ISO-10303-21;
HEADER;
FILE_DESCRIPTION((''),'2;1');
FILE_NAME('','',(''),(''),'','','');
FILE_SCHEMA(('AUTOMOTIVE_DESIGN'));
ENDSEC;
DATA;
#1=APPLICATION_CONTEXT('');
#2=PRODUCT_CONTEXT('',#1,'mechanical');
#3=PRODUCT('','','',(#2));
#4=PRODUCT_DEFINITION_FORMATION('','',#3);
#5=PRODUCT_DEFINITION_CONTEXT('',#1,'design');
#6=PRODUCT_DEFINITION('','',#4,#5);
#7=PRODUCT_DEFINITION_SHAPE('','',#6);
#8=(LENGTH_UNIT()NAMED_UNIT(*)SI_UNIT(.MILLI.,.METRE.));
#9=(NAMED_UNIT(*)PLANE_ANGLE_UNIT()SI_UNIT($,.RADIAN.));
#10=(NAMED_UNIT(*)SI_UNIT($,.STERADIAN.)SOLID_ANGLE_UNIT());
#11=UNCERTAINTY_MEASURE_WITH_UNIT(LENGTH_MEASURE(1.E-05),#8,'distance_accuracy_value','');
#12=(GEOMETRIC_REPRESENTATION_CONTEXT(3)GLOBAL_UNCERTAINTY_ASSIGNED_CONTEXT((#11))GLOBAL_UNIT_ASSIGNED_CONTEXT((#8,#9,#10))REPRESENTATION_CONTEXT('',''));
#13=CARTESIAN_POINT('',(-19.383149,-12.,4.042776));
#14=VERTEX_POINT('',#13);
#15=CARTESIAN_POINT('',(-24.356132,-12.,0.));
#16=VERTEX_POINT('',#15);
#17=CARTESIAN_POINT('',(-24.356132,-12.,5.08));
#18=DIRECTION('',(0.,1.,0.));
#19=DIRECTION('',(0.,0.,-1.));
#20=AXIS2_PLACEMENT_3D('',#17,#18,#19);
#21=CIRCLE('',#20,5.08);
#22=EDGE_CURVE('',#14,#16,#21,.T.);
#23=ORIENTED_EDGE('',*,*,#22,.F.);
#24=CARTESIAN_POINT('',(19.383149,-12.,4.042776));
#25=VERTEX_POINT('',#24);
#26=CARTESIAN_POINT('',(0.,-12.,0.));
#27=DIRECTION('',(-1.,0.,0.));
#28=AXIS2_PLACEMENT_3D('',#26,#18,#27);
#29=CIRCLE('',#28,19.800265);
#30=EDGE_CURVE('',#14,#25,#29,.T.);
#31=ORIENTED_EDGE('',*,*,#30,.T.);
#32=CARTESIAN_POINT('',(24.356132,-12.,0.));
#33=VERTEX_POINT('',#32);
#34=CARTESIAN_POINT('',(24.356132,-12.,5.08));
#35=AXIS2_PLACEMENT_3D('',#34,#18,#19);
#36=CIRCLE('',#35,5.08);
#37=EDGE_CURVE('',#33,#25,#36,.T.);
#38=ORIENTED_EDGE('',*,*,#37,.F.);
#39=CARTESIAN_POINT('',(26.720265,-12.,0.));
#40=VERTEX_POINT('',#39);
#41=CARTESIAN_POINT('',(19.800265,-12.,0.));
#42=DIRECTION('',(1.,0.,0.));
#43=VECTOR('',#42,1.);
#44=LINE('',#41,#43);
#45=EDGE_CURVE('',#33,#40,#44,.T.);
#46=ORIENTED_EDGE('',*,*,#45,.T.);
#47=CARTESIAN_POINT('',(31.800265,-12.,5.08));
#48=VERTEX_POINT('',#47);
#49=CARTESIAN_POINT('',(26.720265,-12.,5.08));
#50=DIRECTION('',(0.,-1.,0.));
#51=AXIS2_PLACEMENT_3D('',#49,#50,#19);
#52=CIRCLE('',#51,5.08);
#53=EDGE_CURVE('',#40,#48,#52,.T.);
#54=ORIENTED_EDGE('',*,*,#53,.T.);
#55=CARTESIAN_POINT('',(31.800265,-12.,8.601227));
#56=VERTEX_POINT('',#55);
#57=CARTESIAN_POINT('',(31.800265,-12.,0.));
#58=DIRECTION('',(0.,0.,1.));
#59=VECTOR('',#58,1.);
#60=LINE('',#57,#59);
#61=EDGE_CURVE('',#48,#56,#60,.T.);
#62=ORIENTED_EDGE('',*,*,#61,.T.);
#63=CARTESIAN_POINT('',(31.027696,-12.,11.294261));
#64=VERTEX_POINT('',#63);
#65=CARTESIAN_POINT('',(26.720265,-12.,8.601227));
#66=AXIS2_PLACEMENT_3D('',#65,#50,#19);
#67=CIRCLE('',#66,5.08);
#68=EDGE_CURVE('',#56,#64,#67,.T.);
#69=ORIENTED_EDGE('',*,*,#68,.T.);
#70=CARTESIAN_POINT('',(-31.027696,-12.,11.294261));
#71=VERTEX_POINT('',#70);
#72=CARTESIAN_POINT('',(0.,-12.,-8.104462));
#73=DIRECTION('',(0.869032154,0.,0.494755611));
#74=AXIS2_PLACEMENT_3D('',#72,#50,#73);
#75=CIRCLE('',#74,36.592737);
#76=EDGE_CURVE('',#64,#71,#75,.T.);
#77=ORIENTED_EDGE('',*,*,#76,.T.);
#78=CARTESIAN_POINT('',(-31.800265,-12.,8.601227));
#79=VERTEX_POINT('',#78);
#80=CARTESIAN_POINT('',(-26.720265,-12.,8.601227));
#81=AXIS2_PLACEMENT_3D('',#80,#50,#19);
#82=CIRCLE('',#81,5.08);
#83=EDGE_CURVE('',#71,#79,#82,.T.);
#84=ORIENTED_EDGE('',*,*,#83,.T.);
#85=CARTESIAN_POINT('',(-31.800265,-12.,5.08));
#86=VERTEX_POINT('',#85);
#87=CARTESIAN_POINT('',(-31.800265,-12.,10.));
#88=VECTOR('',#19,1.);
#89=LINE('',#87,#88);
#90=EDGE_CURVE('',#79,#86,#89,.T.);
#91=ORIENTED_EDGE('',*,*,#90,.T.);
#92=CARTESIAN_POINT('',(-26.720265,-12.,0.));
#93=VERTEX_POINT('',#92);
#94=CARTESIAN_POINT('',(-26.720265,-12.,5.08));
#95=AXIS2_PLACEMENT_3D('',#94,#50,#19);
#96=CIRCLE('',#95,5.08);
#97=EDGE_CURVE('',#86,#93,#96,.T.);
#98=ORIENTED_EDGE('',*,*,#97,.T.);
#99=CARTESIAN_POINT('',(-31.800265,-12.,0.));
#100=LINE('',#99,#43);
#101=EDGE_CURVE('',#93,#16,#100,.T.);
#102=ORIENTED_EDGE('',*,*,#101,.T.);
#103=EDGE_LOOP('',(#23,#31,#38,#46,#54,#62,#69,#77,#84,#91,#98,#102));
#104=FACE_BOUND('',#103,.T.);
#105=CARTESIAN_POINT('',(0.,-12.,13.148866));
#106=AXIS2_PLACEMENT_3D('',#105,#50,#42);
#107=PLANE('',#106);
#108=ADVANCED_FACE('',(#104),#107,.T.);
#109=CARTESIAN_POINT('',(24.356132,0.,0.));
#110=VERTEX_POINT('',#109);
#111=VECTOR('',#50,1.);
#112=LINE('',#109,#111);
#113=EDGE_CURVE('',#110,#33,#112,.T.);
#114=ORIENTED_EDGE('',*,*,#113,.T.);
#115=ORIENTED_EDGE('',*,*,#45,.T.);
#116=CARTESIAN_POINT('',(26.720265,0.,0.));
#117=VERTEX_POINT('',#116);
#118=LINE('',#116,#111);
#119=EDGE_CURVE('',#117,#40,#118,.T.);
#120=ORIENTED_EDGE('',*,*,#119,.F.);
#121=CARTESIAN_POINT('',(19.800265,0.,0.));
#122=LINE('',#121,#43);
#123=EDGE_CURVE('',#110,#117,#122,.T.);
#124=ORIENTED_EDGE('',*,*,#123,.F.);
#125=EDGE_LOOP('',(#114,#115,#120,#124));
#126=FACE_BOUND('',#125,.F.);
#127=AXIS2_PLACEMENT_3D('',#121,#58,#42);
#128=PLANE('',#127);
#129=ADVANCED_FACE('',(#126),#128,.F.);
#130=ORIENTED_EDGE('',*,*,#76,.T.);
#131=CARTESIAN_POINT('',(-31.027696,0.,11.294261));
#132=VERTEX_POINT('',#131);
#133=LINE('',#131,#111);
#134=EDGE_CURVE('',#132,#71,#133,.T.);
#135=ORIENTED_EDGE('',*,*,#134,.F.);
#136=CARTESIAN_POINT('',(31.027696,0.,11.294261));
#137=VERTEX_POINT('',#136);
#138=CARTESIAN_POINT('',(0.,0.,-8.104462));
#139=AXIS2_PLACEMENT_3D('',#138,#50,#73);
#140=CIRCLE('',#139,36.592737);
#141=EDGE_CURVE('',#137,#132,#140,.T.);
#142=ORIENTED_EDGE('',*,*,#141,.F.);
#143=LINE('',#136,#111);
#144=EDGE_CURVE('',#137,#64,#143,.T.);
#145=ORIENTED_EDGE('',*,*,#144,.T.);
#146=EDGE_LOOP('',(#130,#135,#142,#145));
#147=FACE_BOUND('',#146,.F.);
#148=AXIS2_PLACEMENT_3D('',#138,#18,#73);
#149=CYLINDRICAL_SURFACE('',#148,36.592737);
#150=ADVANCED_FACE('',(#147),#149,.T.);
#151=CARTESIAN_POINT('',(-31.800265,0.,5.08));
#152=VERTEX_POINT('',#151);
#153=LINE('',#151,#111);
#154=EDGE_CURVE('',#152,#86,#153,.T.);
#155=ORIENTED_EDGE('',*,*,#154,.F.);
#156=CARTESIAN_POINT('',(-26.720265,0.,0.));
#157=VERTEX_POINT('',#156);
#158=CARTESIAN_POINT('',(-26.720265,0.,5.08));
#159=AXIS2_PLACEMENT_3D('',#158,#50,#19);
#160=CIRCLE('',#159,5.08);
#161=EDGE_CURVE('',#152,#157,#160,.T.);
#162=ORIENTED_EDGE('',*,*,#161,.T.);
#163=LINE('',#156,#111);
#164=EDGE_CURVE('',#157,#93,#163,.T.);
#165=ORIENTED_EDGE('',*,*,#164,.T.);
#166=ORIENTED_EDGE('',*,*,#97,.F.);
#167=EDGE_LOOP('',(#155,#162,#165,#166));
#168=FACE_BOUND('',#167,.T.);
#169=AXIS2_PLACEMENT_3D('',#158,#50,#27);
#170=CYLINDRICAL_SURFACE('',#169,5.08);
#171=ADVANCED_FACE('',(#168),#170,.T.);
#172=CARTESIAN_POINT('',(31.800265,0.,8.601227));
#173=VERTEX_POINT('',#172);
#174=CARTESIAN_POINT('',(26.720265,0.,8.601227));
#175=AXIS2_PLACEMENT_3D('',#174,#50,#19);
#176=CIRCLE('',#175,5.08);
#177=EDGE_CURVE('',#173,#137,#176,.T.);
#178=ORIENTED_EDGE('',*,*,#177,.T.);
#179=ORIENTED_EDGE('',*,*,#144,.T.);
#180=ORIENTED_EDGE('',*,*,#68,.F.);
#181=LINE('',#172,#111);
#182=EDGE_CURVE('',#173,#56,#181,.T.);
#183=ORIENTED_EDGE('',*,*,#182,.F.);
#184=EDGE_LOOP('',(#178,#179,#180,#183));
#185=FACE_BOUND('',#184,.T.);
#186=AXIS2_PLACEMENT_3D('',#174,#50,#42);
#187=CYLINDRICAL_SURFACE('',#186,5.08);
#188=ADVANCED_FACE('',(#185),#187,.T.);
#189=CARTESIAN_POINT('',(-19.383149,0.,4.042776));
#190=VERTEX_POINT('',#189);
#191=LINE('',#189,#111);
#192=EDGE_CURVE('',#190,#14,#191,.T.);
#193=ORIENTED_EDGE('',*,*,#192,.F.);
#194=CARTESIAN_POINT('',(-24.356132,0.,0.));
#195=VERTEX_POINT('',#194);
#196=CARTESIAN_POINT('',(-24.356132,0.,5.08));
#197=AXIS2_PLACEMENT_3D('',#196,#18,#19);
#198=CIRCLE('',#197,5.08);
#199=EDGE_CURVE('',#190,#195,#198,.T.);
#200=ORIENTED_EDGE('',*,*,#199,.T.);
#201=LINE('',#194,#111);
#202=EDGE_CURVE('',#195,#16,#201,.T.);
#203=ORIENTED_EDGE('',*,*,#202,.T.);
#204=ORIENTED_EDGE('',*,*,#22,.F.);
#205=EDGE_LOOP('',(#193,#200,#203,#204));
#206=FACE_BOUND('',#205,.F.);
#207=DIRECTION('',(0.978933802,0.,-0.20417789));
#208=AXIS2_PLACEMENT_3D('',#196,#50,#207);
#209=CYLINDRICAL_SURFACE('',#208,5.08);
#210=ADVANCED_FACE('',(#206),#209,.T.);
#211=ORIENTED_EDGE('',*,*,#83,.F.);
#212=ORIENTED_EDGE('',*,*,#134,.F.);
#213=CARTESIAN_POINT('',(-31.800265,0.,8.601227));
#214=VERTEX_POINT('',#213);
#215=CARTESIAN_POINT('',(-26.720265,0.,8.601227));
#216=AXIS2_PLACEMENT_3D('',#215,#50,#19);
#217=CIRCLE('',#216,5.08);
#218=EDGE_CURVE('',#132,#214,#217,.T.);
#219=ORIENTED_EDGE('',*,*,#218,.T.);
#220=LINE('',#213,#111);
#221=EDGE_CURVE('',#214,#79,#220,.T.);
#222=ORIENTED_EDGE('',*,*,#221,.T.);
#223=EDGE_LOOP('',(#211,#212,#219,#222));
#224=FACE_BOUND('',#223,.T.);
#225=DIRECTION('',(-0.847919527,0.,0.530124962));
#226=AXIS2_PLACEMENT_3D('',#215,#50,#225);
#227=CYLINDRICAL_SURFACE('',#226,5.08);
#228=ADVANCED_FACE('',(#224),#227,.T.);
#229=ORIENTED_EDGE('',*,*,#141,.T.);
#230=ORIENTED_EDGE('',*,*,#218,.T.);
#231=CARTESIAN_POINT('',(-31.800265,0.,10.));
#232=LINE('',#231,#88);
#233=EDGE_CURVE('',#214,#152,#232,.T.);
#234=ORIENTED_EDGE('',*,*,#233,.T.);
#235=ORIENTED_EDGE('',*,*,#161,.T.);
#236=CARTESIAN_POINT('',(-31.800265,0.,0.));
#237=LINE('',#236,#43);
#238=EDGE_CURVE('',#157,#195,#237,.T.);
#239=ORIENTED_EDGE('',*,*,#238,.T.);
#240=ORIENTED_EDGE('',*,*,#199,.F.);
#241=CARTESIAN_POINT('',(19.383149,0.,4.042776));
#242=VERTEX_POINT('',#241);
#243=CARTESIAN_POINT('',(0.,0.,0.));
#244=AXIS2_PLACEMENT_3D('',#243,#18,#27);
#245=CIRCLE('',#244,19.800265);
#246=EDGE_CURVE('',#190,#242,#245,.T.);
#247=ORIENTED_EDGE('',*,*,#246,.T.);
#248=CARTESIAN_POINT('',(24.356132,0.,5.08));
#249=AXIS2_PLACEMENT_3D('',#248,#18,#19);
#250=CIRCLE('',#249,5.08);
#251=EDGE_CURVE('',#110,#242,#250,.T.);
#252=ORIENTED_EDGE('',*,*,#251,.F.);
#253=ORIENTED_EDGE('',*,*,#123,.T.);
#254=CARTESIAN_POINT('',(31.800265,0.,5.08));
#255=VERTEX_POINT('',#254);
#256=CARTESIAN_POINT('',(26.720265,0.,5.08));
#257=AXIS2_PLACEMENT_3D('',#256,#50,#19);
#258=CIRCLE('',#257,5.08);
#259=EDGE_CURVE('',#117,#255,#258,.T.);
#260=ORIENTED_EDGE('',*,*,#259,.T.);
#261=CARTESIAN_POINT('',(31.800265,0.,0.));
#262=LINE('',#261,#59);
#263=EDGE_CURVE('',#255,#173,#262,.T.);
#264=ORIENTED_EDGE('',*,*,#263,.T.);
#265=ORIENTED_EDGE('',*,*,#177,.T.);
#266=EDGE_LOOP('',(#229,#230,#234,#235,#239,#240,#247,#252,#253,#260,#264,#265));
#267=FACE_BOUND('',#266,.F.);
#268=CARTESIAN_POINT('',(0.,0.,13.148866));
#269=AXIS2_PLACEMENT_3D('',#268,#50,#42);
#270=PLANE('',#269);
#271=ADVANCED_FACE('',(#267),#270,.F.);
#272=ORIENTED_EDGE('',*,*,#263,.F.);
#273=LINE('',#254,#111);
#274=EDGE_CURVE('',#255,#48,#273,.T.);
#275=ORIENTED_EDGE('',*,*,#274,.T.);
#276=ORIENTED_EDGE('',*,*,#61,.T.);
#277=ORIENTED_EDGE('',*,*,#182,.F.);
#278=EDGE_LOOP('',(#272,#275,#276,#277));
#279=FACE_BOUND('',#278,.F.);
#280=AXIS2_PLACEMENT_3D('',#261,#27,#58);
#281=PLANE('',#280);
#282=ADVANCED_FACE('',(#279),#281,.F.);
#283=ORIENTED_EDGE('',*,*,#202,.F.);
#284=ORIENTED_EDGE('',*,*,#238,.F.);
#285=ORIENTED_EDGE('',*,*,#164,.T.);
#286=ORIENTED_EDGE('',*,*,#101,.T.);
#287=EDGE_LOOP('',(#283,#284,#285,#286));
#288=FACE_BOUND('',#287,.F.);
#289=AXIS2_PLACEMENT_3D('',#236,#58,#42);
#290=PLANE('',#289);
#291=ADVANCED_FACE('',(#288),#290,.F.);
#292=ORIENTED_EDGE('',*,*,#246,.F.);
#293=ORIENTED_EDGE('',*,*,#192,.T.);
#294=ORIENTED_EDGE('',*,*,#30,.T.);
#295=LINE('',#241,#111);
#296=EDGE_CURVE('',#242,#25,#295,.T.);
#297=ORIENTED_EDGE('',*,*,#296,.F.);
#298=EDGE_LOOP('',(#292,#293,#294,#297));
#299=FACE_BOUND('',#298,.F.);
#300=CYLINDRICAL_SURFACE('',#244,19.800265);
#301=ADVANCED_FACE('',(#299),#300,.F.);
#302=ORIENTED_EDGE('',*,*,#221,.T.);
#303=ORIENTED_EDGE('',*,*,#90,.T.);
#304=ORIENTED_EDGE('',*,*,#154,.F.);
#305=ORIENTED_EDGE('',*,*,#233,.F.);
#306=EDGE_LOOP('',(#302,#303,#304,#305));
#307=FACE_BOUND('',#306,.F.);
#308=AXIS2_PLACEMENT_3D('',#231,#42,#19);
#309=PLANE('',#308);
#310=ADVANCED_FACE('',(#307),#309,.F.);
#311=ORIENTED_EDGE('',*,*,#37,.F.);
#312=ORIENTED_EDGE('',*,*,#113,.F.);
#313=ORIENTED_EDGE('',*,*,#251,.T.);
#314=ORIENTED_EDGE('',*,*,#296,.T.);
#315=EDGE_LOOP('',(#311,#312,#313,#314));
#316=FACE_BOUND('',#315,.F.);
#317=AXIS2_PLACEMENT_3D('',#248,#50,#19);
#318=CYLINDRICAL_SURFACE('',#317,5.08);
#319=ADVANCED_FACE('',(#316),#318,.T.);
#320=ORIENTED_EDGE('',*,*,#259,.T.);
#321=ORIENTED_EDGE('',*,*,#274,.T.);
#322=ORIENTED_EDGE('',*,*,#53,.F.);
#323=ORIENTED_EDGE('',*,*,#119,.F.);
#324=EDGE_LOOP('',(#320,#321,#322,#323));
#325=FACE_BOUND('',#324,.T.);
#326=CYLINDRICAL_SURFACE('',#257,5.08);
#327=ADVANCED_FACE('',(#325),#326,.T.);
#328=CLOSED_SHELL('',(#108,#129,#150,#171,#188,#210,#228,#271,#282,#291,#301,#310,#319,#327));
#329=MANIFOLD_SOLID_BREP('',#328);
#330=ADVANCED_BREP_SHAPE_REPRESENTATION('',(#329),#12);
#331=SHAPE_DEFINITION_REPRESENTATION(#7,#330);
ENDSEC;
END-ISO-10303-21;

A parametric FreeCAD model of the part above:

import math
import FreeCAD as App
import Part
import Sketcher

V = App.Vector
Q = App.Units.Quantity


def edges_at(feature, points):
    """Names of the edges that pass closest to the given points."""
    edges = feature.Shape.Edges
    near = lambda p: min(range(len(edges)), key=lambda i: edges[i].distToShape(Part.Vertex(*p))[0])
    return sorted({f"Edge{near(p) + 1}" for p in points})

doc = App.newDocument("Part")
body = doc.addObject("PartDesign::Body", "Body")

sketch1 = body.newObject("Sketcher::SketchObject", "Sketch")
sketch1.AttachmentSupport = (doc.getObject("XZ_Plane"), [""])
sketch1.MapMode = "FlatFace"
sketch1.addGeometry([
    Part.ArcOfCircle(Part.Circle(V(0, 0, 0), V(0, 0, 1), 19.800265), math.radians(0), math.radians(180)),
    Part.LineSegment(V(19.800265, 0, 0), V(31.800265, 0, 0)),
    Part.LineSegment(V(31.800265, 0, 0), V(31.800265, 10, 0)),
    Part.ArcOfCircle(Part.Circle(V(0, -8.104462, 0), V(0, 0, 1), 36.592737), math.radians(29.653636), math.radians(150.346364)),
    Part.LineSegment(V(-31.800265, 10, 0), V(-31.800265, 0, 0)),
    Part.LineSegment(V(-31.800265, 0, 0), V(-19.800265, 0, 0)),
], False)
sketch1.addConstraint([
    Sketcher.Constraint("Coincident", 0, 1, 1, 1),
    Sketcher.Constraint("Coincident", 1, 2, 2, 1),
    Sketcher.Constraint("Coincident", 2, 2, 3, 1),
    Sketcher.Constraint("Coincident", 3, 2, 4, 1),
    Sketcher.Constraint("Coincident", 4, 2, 5, 1),
    Sketcher.Constraint("Coincident", 5, 2, 0, 2),
    Sketcher.Constraint("Horizontal", 1),
    Sketcher.Constraint("Vertical", 2),
    Sketcher.Constraint("Vertical", 4),
    Sketcher.Constraint("Horizontal", 5),
    Sketcher.Constraint("Coincident", 0, 3, -1, 1),
    Sketcher.Constraint("Symmetric", 1, 2, 4, 2, -1, 1),
    Sketcher.Constraint("PointOnObject", 3, 3, -2),
    Sketcher.Constraint("PointOnObject", 0, 1, -1),
    Sketcher.Constraint("DistanceX", 1, 1, 1, 2, Q("12 mm")),
    Sketcher.Constraint("DistanceY", 2, 1, 2, 2, Q("10 mm")),
    Sketcher.Constraint("Radius", 0, Q("19.800265 mm")),
    Sketcher.Constraint("Radius", 3, Q("36.592737 mm")),
])
pad1 = body.newObject("PartDesign::Pad", "Pad")
pad1.Profile = sketch1
pad1.Length = 12
doc.recompute()

fillet = body.newObject("PartDesign::Fillet", "Fillet")
fillet.Base = (pad1, edges_at(pad1, [
    (31.8, -6, 10),
    (31.8, -6, 0),
    (-31.8, -6, 10),
    (-31.8, -6, 0),
]))
fillet.Radius = 5.08
doc.recompute()

fillet2 = body.newObject("PartDesign::Fillet", "Fillet001")
fillet2.Base = (fillet, edges_at(fillet, [(19.8, -6, 0), (-19.8, -6, 0)]))
fillet2.Radius = 5.08

doc.recompute()
